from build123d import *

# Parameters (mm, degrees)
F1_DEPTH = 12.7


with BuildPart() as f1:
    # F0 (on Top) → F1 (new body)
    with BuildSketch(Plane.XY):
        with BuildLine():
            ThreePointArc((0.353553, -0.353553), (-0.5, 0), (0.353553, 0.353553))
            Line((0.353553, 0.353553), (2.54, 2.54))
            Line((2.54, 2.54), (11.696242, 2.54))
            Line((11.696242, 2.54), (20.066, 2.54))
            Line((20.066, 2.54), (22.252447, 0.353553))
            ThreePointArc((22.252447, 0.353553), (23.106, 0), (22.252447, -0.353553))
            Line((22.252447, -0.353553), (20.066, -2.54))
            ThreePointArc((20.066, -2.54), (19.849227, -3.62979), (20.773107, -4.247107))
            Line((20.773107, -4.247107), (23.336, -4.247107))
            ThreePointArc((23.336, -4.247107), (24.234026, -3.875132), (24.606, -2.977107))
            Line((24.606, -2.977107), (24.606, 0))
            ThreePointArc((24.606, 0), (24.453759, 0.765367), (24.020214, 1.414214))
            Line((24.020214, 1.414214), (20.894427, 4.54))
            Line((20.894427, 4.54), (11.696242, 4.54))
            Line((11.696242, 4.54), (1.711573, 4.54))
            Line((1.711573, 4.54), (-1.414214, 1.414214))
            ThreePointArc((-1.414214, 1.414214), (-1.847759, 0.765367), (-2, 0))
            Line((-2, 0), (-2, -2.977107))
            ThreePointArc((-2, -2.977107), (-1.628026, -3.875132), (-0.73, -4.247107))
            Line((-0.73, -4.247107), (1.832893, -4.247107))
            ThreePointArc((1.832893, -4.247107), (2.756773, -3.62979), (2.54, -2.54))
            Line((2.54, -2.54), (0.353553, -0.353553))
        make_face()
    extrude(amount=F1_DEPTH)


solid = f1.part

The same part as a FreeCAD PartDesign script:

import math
import FreeCAD as App
import Part
import Sketcher
Q = App.Units.Quantity

doc = App.newDocument("Part")
body = doc.addObject("PartDesign::Body", "Body")

sketch1 = body.newObject("Sketcher::SketchObject", "Sketch")
sketch1.AttachmentSupport = (doc.getObject("XY_Plane"), [""])
sketch1.MapMode = "FlatFace"
sketch1.addGeometry(Part.ArcOfCircle(Part.Circle(App.Vector(0, 0, 0), App.Vector(0, 0, 1), 0.5), math.radians(45), math.radians(315)), False)
sketch1.addGeometry(Part.LineSegment(App.Vector(0.35, 0.35, 0), App.Vector(2.54, 2.54, 0)), False)
sketch1.addGeometry(Part.LineSegment(App.Vector(2.54, 2.54, 0), App.Vector(20.07, 2.54, 0)), False)
sketch1.addGeometry(Part.LineSegment(App.Vector(20.07, 2.54, 0), App.Vector(22.25, 0.35, 0)), False)
sketch1.addGeometry(Part.ArcOfCircle(Part.Circle(App.Vector(22.61, 0, 0), App.Vector(0, 0, 1), 0.5), math.radians(-135), math.radians(135)), False)
sketch1.addGeometry(Part.LineSegment(App.Vector(22.25, -0.35, 0), App.Vector(20.07, -2.54, 0)), False)
sketch1.addGeometry(Part.ArcOfCircle(Part.Circle(App.Vector(20.77, -3.25, 0), App.Vector(0, 0, 1), 1), math.radians(135), math.radians(270)), False)
sketch1.addGeometry(Part.LineSegment(App.Vector(20.77, -4.25, 0), App.Vector(23.34, -4.25, 0)), False)
sketch1.addGeometry(Part.ArcOfCircle(Part.Circle(App.Vector(23.34, -2.98, 0), App.Vector(0, 0, 1), 1.27), math.radians(-90), math.radians(0)), False)
sketch1.addGeometry(Part.LineSegment(App.Vector(24.61, -2.98, 0), App.Vector(24.61, 0, 0)), False)
sketch1.addGeometry(Part.ArcOfCircle(Part.Circle(App.Vector(22.61, 0, 0), App.Vector(0, 0, 1), 2), math.radians(0), math.radians(45)), False)
sketch1.addGeometry(Part.LineSegment(App.Vector(24.02, 1.41, 0), App.Vector(20.89, 4.54, 0)), False)
sketch1.addGeometry(Part.LineSegment(App.Vector(20.89, 4.54, 0), App.Vector(1.71, 4.54, 0)), False)
sketch1.addGeometry(Part.LineSegment(App.Vector(1.71, 4.54, 0), App.Vector(-1.41, 1.41, 0)), False)
sketch1.addGeometry(Part.ArcOfCircle(Part.Circle(App.Vector(0, 0, 0), App.Vector(0, 0, 1), 2), math.radians(135), math.radians(180)), False)
sketch1.addGeometry(Part.LineSegment(App.Vector(-2, 0, 0), App.Vector(-2, -2.98, 0)), False)
sketch1.addGeometry(Part.ArcOfCircle(Part.Circle(App.Vector(-0.73, -2.98, 0), App.Vector(0, 0, 1), 1.27), math.radians(-180), math.radians(-90)), False)
sketch1.addGeometry(Part.LineSegment(App.Vector(-0.73, -4.25, 0), App.Vector(1.83, -4.25, 0)), False)
sketch1.addGeometry(Part.ArcOfCircle(Part.Circle(App.Vector(1.83, -3.25, 0), App.Vector(0, 0, 1), 1), math.radians(-90), math.radians(45)), False)
sketch1.addGeometry(Part.LineSegment(App.Vector(2.54, -2.54, 0), App.Vector(0.35, -0.35, 0)), False)
sketch1.addConstraint(Sketcher.Constraint("Coincident", 0, 1, 1, 1))
sketch1.addConstraint(Sketcher.Constraint("Coincident", 1, 2, 2, 1))
sketch1.addConstraint(Sketcher.Constraint("Coincident", 2, 2, 3, 1))
sketch1.addConstraint(Sketcher.Constraint("Coincident", 3, 2, 4, 2))
sketch1.addConstraint(Sketcher.Constraint("Coincident", 4, 1, 5, 1))
sketch1.addConstraint(Sketcher.Constraint("Tangent", 5, 2, 6, 1))
sketch1.addConstraint(Sketcher.Constraint("Tangent", 6, 2, 7, 1))
sketch1.addConstraint(Sketcher.Constraint("Tangent", 7, 2, 8, 1))
sketch1.addConstraint(Sketcher.Constraint("Tangent", 8, 2, 9, 1))
sketch1.addConstraint(Sketcher.Constraint("Tangent", 9, 2, 10, 1))
sketch1.addConstraint(Sketcher.Constraint("Tangent", 10, 2, 11, 1))
sketch1.addConstraint(Sketcher.Constraint("Coincident", 11, 2, 12, 1))
sketch1.addConstraint(Sketcher.Constraint("Coincident", 12, 2, 13, 1))
sketch1.addConstraint(Sketcher.Constraint("Tangent", 13, 2, 14, 1))
sketch1.addConstraint(Sketcher.Constraint("Tangent", 14, 2, 15, 1))
sketch1.addConstraint(Sketcher.Constraint("Tangent", 15, 2, 16, 1))
sketch1.addConstraint(Sketcher.Constraint("Tangent", 16, 2, 17, 1))
sketch1.addConstraint(Sketcher.Constraint("Tangent", 17, 2, 18, 1))
sketch1.addConstraint(Sketcher.Constraint("Tangent", 18, 2, 19, 1))
sketch1.addConstraint(Sketcher.Constraint("Coincident", 19, 2, 0, 2))
sketch1.addConstraint(Sketcher.Constraint("Horizontal", 2))
sketch1.addConstraint(Sketcher.Constraint("Horizontal", 7))
sketch1.addConstraint(Sketcher.Constraint("Vertical", 9))
sketch1.addConstraint(Sketcher.Constraint("Horizontal", 12))
sketch1.addConstraint(Sketcher.Constraint("Vertical", 15))
sketch1.addConstraint(Sketcher.Constraint("Horizontal", 17))
sketch1.addConstraint(Sketcher.Constraint("Coincident", 0, 3, -1, 1))
sketch1.addConstraint(Sketcher.Constraint("Coincident", 14, 3, -1, 1))
sketch1.addConstraint(Sketcher.Constraint("Coincident", 10, 3, 4, 3))
sketch1.addConstraint(Sketcher.Constraint("Equal", 0, 4))
sketch1.addConstraint(Sketcher.Constraint("Equal", 10, 14))
sketch1.addConstraint(Sketcher.Constraint("Equal", 8, 16))
sketch1.addConstraint(Sketcher.Constraint("Equal", 6, 18))
sketch1.addConstraint(Sketcher.Constraint("Symmetric", 3, 2, 4, 1, -1))
sketch1.addConstraint(Sketcher.Constraint("Symmetric", 2, 2, 5, 2, -1))
sketch1.addConstraint(Sketcher.Constraint("Symmetric", 1, 2, 18, 2, -1))
sketch1.addConstraint(Sketcher.Constraint("Perpendicular", 1, 3))
sketch1.addConstraint(Sketcher.Constraint("Perpendicular", 3, 5))
sketch1.addConstraint(Sketcher.Constraint("Perpendicular", 5, 11))
sketch1.addConstraint(Sketcher.Constraint("Perpendicular", 11, 13))
sketch1.addConstraint(Sketcher.Constraint("Perpendicular", 13, 19))
sketch1.addConstraint(Sketcher.Constraint("Horizontal", 0, 1, 3, 2))
sketch1.addConstraint(Sketcher.Constraint("Radius", 8, Q("0.05 in")))
sketch1.addConstraint(Sketcher.Constraint("DistanceX", 2, 1, 2, 2, Q("0.69 in")))
sketch1.addConstraint(Sketcher.Constraint("DistanceX", -1, 1, 1, 2, Q("0.1 in")))
sketch1.addConstraint(Sketcher.Constraint("DistanceY", -1, 1, 1, 2, Q("0.1 in")))
sketch1.addConstraint(Sketcher.Constraint("Radius", 0, Q("0.5 mm")))
sketch1.addConstraint(Sketcher.Constraint("Radius", 6, Q("1 mm")))
sketch1.addConstraint(Sketcher.Constraint("Radius", 10, Q("2.000004 mm")))
sketch1.addConstraint(Sketcher.Constraint("DistanceY", -1, 1, 11, 2, Q("4.54 mm")))
pad1 = body.newObject("PartDesign::Pad", "Pad")
pad1.Profile = sketch1
pad1.Length = Q("0.5 in")

doc.recompute()
